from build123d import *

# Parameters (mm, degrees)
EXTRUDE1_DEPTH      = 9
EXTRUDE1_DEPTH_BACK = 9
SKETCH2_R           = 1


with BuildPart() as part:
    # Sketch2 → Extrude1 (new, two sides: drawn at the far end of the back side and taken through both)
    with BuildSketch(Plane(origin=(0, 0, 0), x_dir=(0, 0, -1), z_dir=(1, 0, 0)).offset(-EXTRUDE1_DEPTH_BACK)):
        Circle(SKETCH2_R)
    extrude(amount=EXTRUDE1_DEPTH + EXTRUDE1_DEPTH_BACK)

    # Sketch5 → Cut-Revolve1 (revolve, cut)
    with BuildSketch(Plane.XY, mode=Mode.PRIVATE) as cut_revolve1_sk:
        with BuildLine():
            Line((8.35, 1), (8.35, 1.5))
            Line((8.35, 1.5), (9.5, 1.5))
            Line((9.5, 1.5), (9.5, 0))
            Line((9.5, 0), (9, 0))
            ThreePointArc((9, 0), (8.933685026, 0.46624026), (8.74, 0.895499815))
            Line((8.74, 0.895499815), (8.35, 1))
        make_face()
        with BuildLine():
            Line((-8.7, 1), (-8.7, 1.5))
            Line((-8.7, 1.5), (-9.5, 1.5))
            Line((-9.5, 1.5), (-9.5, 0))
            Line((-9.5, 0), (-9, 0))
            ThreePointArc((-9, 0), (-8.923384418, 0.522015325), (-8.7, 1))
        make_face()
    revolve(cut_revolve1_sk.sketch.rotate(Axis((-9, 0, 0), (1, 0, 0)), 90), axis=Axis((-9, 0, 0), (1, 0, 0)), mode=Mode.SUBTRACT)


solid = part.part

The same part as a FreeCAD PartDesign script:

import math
import FreeCAD as App
import Part
import Sketcher
from FreeCAD import Vector
Q = App.Units.Quantity

doc = App.newDocument("Part")
body = doc.addObject("PartDesign::Body", "Body")

sketch1 = body.newObject("Sketcher::SketchObject", "Sketch")
sketch1.AttachmentSupport = (doc.getObject("YZ_Plane"), [""])
sketch1.MapMode = "FlatFace"
sketch1.addGeometry(Part.Circle(Vector(0, 0, 0), Vector(0, 0, 1), 1), False)
sketch1.addConstraint([
    Sketcher.Constraint("Coincident", 0, 3, -1, 1),
    Sketcher.Constraint("Diameter", 0, 2.0),
])
pad1 = body.newObject("PartDesign::Pad", "Pad")
pad1.Profile = sketch1
pad1.Type = "TwoLengths"
pad1.Length = 9
pad1.Length2 = 9

sketch2 = body.newObject("Sketcher::SketchObject", "Sketch001")
sketch2.AttachmentSupport = (doc.getObject("XY_Plane"), [""])
sketch2.MapMode = "FlatFace"
sketch2.addGeometry([
    Part.LineSegment(Vector(8.35, 1.5, 0), Vector(8.35, 1, 0)),
    Part.LineSegment(Vector(8.35, 1, 0), Vector(8.74, 0.8955, 0)),
    Part.ArcOfCircle(Part.Circle(Vector(7.327846, 0, 0), Vector(0, 0, 1), 1.672154), math.radians(0), math.radians(32.380322)),
    Part.LineSegment(Vector(9, 0, 0), Vector(9.5, 0, 0)),
    Part.LineSegment(Vector(9.5, 0, 0), Vector(9.5, 1.5, 0)),
    Part.LineSegment(Vector(9.5, 1.5, 0), Vector(8.35, 1.5, 0)),
    Part.LineSegment(Vector(-8.7, 1, 0), Vector(-8.7, 1.5, 0)),
    Part.LineSegment(Vector(-8.7, 1.5, 0), Vector(-9.5, 1.5, 0)),
    Part.LineSegment(Vector(-9.5, 1.5, 0), Vector(-9.5, 0, 0)),
    Part.LineSegment(Vector(-9.5, 0, 0), Vector(-9, 0, 0)),
    Part.ArcOfCircle(Part.Circle(Vector(-7.183333, 0, 0), Vector(0, 0, 1), 1.816667), math.radians(146.601512), math.radians(180)),
], False)
sketch2.addConstraint([
    Sketcher.Constraint("Coincident", 0, 2, 1, 1),
    Sketcher.Constraint("Coincident", 1, 2, 2, 2),
    Sketcher.Constraint("Coincident", 2, 1, 3, 1),
    Sketcher.Constraint("Coincident", 3, 2, 4, 1),
    Sketcher.Constraint("Coincident", 4, 2, 5, 1),
    Sketcher.Constraint("Coincident", 5, 2, 0, 1),
    Sketcher.Constraint("Coincident", 6, 2, 7, 1),
    Sketcher.Constraint("Coincident", 7, 2, 8, 1),
    Sketcher.Constraint("Coincident", 8, 2, 9, 1),
    Sketcher.Constraint("Coincident", 9, 2, 10, 2),
    Sketcher.Constraint("Coincident", 10, 1, 6, 1),
    Sketcher.Constraint("Vertical", 0),
    Sketcher.Constraint("Horizontal", 3),
    Sketcher.Constraint("Vertical", 4),
    Sketcher.Constraint("Horizontal", 5),
    Sketcher.Constraint("Vertical", 6),
    Sketcher.Constraint("Horizontal", 7),
    Sketcher.Constraint("Vertical", 8),
    Sketcher.Constraint("Horizontal", 9),
    Sketcher.Constraint("Symmetric", 3, 2, 8, 2, -1, 1),
    Sketcher.Constraint("Symmetric", 2, 1, 9, 2, -2),
    Sketcher.Constraint("PointOnObject", 2, 3, -1),
    Sketcher.Constraint("PointOnObject", 10, 3, -1),
    Sketcher.Constraint("Horizontal", 5, 2, 6, 2),
    Sketcher.Constraint("Horizontal", 0, 2, 10, 1),
    Sketcher.Constraint("Equal", 9, 0),
    Sketcher.Constraint("Angle", 1, Q("-15 deg")),
    Sketcher.Constraint("DistanceX", 3, 1, 3, 2, 0.5),
    Sketcher.Constraint("DistanceX", 7, 2, 7, 1, 0.8),
    Sketcher.Constraint("DistanceY", 4, 1, 4, 2, 1.5),
    Sketcher.Constraint("DistanceX", -1, 1, 2, 1, 9.0),
    Sketcher.Constraint("DistanceX", 5, 2, 5, 1, 1.15),
    Sketcher.Constraint("DistanceX", -1, 1, 1, 2, 8.74),
])
groove = body.newObject("PartDesign::Groove", "Groove")
groove.Profile = sketch2
groove.ReferenceAxis = (sketch2, ["H_Axis"])
groove.Angle = 360

doc.recompute()
